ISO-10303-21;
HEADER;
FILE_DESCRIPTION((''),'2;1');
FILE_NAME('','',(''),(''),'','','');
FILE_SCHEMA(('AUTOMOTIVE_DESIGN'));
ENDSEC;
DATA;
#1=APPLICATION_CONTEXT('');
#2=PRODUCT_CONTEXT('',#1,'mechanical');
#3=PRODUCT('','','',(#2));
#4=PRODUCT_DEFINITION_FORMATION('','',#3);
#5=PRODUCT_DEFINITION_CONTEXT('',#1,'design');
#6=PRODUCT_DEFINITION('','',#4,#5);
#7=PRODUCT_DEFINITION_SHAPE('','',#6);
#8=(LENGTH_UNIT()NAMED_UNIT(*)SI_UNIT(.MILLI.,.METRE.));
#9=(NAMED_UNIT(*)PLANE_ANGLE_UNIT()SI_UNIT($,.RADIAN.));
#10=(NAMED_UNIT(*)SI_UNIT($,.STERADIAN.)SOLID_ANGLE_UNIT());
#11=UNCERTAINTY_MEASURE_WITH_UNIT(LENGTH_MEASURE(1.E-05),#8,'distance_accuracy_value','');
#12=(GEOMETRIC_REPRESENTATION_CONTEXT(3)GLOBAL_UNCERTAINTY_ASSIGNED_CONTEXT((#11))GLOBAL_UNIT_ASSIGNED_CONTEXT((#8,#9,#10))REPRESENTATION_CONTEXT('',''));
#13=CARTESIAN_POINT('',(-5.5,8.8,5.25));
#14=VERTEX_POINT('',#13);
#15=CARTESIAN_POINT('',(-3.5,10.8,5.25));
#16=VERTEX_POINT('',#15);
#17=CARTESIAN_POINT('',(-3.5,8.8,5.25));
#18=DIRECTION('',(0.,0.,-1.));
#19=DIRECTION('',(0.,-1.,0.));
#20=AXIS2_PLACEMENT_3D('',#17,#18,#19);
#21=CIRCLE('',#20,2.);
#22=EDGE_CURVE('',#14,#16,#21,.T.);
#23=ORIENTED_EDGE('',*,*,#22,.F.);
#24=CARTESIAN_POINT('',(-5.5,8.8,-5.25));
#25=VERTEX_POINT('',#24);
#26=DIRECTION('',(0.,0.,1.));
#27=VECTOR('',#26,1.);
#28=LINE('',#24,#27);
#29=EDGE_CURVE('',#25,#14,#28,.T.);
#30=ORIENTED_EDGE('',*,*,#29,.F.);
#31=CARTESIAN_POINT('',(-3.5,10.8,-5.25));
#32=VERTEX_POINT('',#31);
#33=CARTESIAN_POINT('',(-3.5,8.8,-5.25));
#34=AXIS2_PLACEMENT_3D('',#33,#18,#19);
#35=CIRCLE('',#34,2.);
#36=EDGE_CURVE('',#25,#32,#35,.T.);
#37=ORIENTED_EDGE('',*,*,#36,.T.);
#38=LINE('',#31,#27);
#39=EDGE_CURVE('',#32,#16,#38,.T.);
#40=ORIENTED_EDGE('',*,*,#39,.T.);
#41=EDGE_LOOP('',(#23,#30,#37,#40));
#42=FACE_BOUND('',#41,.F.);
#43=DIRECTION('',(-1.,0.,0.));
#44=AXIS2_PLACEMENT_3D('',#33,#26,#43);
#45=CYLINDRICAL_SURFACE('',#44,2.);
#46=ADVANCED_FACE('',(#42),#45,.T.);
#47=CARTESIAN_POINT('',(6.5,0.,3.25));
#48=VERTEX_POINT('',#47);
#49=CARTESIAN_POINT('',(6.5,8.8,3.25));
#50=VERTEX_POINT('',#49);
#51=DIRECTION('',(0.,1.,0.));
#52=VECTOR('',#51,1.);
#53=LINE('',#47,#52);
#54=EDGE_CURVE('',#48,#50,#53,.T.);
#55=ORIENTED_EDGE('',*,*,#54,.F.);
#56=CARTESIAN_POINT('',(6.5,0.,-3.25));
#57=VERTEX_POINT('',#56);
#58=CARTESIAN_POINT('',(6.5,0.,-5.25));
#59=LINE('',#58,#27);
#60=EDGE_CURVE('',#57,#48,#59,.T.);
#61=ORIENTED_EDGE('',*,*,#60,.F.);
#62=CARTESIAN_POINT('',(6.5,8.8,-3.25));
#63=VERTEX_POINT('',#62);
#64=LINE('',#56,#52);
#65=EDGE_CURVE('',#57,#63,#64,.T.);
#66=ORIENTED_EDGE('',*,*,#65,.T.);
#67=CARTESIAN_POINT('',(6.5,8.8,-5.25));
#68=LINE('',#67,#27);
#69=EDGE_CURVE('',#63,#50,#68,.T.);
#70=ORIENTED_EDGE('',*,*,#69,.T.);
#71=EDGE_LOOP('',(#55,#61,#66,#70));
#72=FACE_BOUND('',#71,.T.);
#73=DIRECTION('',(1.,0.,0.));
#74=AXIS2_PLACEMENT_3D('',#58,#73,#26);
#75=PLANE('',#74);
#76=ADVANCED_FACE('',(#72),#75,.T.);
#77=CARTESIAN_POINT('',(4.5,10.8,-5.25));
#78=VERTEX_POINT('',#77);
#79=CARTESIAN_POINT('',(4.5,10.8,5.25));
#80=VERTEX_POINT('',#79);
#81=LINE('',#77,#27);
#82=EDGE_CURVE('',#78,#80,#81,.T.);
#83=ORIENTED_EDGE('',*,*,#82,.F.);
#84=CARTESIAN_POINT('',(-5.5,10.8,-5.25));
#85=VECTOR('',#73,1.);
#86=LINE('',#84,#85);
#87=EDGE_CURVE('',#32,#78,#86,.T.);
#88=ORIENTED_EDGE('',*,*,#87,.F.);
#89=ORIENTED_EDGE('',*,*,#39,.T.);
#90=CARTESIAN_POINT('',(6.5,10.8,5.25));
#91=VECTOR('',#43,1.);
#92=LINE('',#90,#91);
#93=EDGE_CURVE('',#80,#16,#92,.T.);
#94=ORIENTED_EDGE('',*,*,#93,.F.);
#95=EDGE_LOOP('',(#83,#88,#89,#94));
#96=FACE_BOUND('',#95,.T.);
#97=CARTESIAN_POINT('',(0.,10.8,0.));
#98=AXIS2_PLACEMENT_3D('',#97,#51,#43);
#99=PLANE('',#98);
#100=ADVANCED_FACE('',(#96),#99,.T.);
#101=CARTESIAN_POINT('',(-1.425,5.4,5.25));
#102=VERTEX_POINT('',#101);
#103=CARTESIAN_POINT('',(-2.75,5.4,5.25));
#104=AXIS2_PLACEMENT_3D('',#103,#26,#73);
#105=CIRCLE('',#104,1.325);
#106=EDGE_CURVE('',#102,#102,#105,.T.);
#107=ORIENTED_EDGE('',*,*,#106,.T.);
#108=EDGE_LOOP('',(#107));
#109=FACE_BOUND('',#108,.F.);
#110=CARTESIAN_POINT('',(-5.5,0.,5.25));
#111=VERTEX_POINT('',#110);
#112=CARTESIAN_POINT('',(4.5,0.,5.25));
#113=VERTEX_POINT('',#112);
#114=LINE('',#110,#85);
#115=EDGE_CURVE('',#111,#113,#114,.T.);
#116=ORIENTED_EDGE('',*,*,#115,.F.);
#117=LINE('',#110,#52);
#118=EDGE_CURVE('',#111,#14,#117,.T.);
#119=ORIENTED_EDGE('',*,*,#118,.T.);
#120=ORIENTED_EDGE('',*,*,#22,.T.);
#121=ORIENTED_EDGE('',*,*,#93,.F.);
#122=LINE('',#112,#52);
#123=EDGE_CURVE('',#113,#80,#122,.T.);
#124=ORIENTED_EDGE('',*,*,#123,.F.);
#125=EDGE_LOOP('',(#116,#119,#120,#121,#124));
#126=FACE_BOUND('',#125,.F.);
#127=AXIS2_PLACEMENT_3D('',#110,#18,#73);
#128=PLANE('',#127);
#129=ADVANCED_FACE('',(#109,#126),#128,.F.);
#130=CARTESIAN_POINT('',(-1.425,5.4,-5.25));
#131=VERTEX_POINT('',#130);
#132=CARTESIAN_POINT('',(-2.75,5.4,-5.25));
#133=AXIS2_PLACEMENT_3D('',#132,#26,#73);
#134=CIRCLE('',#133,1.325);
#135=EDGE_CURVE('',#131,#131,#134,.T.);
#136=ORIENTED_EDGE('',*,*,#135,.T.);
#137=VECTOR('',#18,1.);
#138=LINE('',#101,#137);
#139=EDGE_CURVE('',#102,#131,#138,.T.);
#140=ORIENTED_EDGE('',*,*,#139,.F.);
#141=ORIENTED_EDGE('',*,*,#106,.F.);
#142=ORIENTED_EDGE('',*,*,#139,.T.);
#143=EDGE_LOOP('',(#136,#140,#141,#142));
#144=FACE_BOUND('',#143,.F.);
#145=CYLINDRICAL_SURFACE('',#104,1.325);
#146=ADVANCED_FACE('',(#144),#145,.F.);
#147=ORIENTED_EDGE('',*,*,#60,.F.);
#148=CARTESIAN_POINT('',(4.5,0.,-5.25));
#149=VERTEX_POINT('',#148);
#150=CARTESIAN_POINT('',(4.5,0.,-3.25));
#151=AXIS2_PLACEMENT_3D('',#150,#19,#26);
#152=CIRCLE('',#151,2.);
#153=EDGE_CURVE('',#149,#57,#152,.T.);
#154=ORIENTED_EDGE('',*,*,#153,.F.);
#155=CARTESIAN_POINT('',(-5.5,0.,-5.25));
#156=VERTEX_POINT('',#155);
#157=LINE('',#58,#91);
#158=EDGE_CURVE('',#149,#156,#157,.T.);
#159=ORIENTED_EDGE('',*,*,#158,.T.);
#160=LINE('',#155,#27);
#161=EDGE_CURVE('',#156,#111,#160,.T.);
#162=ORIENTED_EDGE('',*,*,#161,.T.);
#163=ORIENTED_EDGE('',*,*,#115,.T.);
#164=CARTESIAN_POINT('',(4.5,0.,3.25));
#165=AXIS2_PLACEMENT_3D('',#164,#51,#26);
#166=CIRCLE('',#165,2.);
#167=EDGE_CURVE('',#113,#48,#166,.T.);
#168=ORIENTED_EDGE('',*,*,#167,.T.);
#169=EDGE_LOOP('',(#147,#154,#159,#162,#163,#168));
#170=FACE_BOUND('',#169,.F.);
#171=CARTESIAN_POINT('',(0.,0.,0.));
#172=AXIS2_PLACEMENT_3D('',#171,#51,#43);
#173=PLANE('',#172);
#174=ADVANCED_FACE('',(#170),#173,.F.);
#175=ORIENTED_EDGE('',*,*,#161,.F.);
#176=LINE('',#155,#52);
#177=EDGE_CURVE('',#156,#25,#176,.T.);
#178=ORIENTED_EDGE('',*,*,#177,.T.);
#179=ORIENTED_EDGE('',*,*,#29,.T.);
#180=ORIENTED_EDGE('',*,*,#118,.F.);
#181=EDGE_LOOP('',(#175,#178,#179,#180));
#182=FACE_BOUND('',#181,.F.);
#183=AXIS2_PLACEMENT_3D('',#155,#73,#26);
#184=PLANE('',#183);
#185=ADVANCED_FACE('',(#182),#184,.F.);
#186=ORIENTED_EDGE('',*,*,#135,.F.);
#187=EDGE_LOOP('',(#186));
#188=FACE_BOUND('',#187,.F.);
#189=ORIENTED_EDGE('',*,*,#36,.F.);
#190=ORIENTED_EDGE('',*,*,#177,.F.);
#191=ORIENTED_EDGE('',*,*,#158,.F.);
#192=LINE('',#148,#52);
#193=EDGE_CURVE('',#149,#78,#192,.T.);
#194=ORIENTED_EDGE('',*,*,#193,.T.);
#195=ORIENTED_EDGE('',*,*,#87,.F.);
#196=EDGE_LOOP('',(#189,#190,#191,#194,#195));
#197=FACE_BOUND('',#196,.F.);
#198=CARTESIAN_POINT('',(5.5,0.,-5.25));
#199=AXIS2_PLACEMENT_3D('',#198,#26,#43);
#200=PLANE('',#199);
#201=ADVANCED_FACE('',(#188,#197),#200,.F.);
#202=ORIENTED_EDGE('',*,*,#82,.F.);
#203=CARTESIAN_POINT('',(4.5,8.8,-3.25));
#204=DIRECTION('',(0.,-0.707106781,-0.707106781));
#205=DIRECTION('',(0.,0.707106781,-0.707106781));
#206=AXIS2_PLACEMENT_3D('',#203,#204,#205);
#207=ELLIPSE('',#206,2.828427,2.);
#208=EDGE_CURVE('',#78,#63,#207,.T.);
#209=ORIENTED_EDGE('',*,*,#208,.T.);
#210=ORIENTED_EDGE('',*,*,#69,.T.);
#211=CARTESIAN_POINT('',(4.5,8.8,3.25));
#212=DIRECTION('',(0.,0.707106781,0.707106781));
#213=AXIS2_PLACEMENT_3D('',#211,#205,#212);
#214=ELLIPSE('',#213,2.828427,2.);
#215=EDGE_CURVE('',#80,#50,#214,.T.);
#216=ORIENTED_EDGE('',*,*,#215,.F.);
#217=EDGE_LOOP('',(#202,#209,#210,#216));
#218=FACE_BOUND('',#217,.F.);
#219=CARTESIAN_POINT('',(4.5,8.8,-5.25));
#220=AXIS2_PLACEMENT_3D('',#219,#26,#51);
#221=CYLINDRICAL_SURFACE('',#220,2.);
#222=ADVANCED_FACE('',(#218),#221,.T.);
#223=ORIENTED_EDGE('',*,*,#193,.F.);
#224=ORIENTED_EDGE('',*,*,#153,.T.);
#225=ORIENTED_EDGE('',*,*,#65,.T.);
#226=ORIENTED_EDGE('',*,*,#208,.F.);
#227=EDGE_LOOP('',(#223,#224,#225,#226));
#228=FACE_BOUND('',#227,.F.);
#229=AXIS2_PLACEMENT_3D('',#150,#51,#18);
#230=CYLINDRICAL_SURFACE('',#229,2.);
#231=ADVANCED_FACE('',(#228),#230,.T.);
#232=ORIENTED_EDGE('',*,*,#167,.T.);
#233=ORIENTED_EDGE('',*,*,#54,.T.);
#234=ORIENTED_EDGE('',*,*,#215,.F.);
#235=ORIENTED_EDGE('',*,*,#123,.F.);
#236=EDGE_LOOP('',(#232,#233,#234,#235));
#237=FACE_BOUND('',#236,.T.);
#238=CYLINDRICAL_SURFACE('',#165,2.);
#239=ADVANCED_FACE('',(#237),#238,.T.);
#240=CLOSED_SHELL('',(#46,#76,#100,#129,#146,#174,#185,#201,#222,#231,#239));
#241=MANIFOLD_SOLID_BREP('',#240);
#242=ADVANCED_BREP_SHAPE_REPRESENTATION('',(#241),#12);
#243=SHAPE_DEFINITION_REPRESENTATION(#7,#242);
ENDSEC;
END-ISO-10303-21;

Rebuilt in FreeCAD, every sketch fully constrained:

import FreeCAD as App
import Part
import Sketcher

V = App.Vector
Q = App.Units.Quantity


def edges_at(feature, points):
    """Names of the edges that pass closest to the given points."""
    edges = feature.Shape.Edges
    near = lambda p: min(range(len(edges)), key=lambda i: edges[i].distToShape(Part.Vertex(*p))[0])
    return sorted({f"Edge{near(p) + 1}" for p in points})

doc = App.newDocument("Part")
params = doc.addObject("Spreadsheet::Sheet", "Params")
for row, (alias, value) in enumerate([
    ("sketch1_height", "10.5 mm"),
    ("sketch1_width", "12 mm"),
    ("pad1_length", "10.8 mm"),
    ("sketch2_diameter", "2.65 mm"),
    ("pocket1_length", "10.5 mm"),
    ("fillet_radius", "2 mm"),
], start=1):
    params.set(f"A{row}", alias)
    params.set(f"B{row}", "=" + value)
    params.setAlias(f"B{row}", alias)

body = doc.addObject("PartDesign::Body", "Body")

# Sketch on XZ plane
sketch1 = body.newObject("Sketcher::SketchObject", "Sketch")
sketch1.AttachmentSupport = (doc.getObject("XZ_Plane"), [""])
sketch1.MapMode = "FlatFace"
sketch1.addGeometry(Part.LineSegment(V(-6, -5, 0), V(-6, 5, 0)), False)
sketch1.addGeometry(Part.LineSegment(V(-6, 5, 0), V(6, 5, 0)), False)
sketch1.addGeometry(Part.LineSegment(V(6, 5, 0), V(6, -5, 0)), False)
sketch1.addGeometry(Part.LineSegment(V(6, -5, 0), V(-6, -5, 0)), False)
sketch1.addConstraint(Sketcher.Constraint("Coincident", 0, 2, 1, 1))
sketch1.addConstraint(Sketcher.Constraint("Coincident", 1, 2, 2, 1))
sketch1.addConstraint(Sketcher.Constraint("Coincident", 2, 2, 3, 1))
sketch1.addConstraint(Sketcher.Constraint("Coincident", 3, 2, 0, 1))
sketch1.addConstraint(Sketcher.Constraint("Vertical", 0))
sketch1.addConstraint(Sketcher.Constraint("Horizontal", 1))
sketch1.addConstraint(Sketcher.Constraint("Vertical", 2))
sketch1.addConstraint(Sketcher.Constraint("Horizontal", 3))
sketch1.addConstraint(Sketcher.Constraint("DistanceY", 0, 1, 0, 2, Q("10.5 mm")))
sketch1.addConstraint(Sketcher.Constraint("DistanceX", 1, 1, 1, 2, Q("12 mm")))
sketch1.addConstraint(Sketcher.Constraint("DistanceX", 0, 2, -1, 1, Q("5.5 mm")))
sketch1.addConstraint(Sketcher.Constraint("DistanceY", -1, 1, 0, 2, Q("5.25 mm")))
sketch1.setExpression("Constraints[8]", "Params.sketch1_height")
sketch1.setExpression("Constraints[9]", "Params.sketch1_width")
pad1 = body.newObject("PartDesign::Pad", "Pad")
pad1.Profile = sketch1
pad1.setExpression("Length", "Params.pad1_length")
pad1.Reversed = True

# Sketch on XY plane
sketch2 = body.newObject("Sketcher::SketchObject", "Sketch001")
sketch2.AttachmentSupport = (doc.getObject("XY_Plane"), [""])
sketch2.MapMode = "FlatFace"
sketch2.AttachmentOffset = App.Placement(V(0, 0, 5.25), App.Rotation())
sketch2.addGeometry(Part.Circle(V(-2.8, 5.4, 0), V(0, 0, 1), 1.3), False)
sketch2.addConstraint(Sketcher.Constraint("Diameter", 0, Q("2.65 mm")))
sketch2.addConstraint(Sketcher.Constraint("DistanceY", -1, 1, 0, 3, Q("5.4 mm")))
sketch2.addConstraint(Sketcher.Constraint("DistanceX", 0, 3, -1, 1, Q("2.75 mm")))
sketch2.setExpression("Constraints[0]", "Params.sketch2_diameter")
pocket1 = body.newObject("PartDesign::Pocket", "Pocket")
pocket1.Profile = sketch2
pocket1.setExpression("Length", "Params.pocket1_length")
doc.recompute()

fillet = body.newObject("PartDesign::Fillet", "Fillet")
fillet.Base = (pocket1, edges_at(pocket1, [
    (6.5, 5.4, 5.25),
    (6.5, 5.4, -5.25),
    (6.5, 10.8, 0),
    (-5.5, 10.8, 0),
]))
fillet.setExpression("Radius", "Params.fillet_radius")

doc.recompute()
